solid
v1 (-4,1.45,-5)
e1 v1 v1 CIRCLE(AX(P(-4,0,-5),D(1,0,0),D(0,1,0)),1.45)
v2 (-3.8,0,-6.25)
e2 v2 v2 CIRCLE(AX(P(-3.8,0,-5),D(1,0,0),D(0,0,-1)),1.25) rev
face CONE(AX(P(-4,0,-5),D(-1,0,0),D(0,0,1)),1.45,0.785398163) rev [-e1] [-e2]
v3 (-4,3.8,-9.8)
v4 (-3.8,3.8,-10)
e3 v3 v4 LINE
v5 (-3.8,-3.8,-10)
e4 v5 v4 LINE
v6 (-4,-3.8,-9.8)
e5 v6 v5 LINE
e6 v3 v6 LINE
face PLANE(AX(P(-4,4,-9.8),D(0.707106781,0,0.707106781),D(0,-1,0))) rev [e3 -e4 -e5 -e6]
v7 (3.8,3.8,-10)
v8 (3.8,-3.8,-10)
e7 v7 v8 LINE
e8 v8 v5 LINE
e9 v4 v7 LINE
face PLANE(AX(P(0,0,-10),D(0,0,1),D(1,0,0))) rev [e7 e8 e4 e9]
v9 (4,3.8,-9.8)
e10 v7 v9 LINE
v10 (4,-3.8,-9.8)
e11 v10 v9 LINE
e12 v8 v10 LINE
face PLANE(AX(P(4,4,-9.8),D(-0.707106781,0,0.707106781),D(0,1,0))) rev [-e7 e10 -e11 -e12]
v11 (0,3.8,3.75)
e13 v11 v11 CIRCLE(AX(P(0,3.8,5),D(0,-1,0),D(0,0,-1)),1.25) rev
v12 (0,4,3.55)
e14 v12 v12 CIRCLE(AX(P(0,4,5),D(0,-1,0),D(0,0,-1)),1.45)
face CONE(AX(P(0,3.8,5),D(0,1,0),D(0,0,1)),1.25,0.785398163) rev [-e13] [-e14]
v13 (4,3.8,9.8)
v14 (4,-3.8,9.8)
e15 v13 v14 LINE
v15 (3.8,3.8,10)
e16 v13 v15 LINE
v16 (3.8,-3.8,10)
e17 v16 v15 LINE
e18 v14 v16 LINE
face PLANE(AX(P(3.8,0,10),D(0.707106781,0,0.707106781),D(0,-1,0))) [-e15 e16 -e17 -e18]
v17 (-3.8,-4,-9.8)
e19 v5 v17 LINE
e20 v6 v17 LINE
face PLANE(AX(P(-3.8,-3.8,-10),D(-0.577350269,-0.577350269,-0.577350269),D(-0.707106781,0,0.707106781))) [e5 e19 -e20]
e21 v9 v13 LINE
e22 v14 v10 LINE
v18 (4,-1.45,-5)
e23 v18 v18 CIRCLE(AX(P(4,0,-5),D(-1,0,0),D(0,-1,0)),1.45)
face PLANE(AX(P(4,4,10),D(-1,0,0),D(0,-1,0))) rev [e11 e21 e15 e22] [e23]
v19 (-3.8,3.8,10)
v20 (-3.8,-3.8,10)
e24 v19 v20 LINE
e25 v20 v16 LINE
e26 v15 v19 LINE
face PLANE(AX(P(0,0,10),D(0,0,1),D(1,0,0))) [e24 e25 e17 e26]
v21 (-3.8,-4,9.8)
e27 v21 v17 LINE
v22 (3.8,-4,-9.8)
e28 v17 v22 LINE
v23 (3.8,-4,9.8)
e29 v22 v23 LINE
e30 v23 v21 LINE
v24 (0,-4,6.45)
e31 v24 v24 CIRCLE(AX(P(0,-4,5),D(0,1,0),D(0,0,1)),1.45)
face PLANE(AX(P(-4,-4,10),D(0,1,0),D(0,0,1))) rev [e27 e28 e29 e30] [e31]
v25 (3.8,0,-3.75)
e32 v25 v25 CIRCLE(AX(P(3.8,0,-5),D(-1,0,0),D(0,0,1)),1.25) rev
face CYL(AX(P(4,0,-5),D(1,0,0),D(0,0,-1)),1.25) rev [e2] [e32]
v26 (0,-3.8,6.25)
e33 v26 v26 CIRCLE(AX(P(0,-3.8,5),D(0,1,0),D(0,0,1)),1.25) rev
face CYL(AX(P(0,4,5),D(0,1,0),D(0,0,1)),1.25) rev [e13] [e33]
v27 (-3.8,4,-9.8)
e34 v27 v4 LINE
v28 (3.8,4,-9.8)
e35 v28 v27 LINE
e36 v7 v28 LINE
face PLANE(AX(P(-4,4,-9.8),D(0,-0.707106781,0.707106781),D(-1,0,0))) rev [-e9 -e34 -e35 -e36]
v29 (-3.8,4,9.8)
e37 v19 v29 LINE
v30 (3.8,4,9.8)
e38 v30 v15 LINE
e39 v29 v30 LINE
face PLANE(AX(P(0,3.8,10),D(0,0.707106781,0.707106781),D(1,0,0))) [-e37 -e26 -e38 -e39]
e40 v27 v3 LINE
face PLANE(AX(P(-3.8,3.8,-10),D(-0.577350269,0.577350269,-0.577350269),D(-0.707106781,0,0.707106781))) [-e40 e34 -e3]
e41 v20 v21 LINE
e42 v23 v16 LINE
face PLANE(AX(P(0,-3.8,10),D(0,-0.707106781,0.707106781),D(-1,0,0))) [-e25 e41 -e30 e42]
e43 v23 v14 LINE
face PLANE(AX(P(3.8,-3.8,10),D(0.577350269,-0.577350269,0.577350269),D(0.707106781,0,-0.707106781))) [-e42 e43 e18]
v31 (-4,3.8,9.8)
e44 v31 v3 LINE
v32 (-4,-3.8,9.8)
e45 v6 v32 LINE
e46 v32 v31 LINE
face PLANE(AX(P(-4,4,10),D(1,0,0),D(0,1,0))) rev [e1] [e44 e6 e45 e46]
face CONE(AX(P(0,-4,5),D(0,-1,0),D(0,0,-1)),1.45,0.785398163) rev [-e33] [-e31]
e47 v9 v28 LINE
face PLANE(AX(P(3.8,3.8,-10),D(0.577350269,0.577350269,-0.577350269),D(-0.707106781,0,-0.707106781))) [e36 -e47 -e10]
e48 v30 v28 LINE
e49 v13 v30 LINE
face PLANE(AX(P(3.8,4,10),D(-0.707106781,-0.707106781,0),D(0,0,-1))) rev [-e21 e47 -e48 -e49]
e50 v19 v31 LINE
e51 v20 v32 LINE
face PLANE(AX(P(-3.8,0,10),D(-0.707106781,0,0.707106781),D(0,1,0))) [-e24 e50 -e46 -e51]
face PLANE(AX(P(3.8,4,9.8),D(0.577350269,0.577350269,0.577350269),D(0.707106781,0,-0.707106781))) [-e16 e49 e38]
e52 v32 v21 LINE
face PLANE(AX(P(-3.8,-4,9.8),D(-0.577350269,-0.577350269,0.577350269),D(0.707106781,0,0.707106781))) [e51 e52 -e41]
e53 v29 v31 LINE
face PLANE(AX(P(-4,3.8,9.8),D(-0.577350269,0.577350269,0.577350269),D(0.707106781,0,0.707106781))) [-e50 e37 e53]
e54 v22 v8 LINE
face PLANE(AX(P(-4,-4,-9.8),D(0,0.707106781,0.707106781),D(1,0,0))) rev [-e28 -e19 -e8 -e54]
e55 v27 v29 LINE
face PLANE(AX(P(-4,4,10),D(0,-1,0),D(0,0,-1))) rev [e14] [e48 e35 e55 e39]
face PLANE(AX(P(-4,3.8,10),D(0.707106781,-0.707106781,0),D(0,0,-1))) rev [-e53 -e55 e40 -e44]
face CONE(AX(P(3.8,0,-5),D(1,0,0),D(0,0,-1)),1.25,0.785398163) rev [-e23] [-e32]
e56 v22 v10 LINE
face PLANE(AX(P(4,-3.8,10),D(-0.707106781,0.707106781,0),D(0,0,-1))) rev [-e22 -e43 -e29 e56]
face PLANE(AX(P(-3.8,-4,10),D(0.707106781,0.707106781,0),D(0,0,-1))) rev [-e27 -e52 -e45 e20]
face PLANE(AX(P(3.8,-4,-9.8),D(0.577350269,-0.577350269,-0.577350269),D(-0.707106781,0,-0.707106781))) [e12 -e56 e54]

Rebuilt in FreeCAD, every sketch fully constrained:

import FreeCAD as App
import Part
import Sketcher
Q = App.Units.Quantity

doc = App.newDocument("Part")
body = doc.addObject("PartDesign::Body", "Body")

# Sketch on XY plane
sketch1 = doc.addObject("Sketcher::SketchObject", "Sketch")
body.addObject(sketch1)
sketch1.AttachmentSupport = (doc.XY_Plane, [""])
sketch1.MapMode = "FlatFace"
sketch1.addGeometry(Part.LineSegment(App.Vector(-4, 4, 0), App.Vector(-4, -4, 0)), False)
sketch1.addGeometry(Part.LineSegment(App.Vector(-4, -4, 0), App.Vector(4, -4, 0)), False)
sketch1.addGeometry(Part.LineSegment(App.Vector(4, -4, 0), App.Vector(4, 4, 0)), False)
sketch1.addGeometry(Part.LineSegment(App.Vector(4, 4, 0), App.Vector(-4, 4, 0)), False)
sketch1.addConstraint(Sketcher.Constraint("Coincident", 0, 2, 1, 1))
sketch1.addConstraint(Sketcher.Constraint("Coincident", 1, 2, 2, 1))
sketch1.addConstraint(Sketcher.Constraint("Coincident", 2, 2, 3, 1))
sketch1.addConstraint(Sketcher.Constraint("Coincident", 3, 2, 0, 1))
sketch1.addConstraint(Sketcher.Constraint("Vertical", 0))
sketch1.addConstraint(Sketcher.Constraint("Horizontal", 1))
sketch1.addConstraint(Sketcher.Constraint("Vertical", 2))
sketch1.addConstraint(Sketcher.Constraint("Horizontal", 3))
sketch1.addConstraint(Sketcher.Constraint("Symmetric", 0, 2, 2, 2, -1, 1))
sketch1.addConstraint(Sketcher.Constraint("Equal", 3, 0))
sketch1.addConstraint(Sketcher.Constraint("DistanceX", 1, 1, 1, 2, Q("8 mm")))
pad1 = doc.addObject("PartDesign::Pad", "Pad")
body.addObject(pad1)
pad1.Profile = sketch1
pad1.Length = 20
pad1.Midplane = True

# Sketch on YZ plane
sketch2 = doc.addObject("Sketcher::SketchObject", "Sketch001")
body.addObject(sketch2)
sketch2.AttachmentSupport = (doc.YZ_Plane, [""])
sketch2.MapMode = "FlatFace"
sketch2.AttachmentOffset = App.Placement(App.Vector(0, 0, 4), App.Rotation())
sketch2.addGeometry(Part.Circle(App.Vector(0, -5, 0), App.Vector(0, 0, 1), 1.25), False)
sketch2.addConstraint(Sketcher.Constraint("PointOnObject", 0, 3, -2))
sketch2.addConstraint(Sketcher.Constraint("Diameter", 0, Q("2.5 mm")))
sketch2.addConstraint(Sketcher.Constraint("DistanceY", 0, 3, -1, 1, Q("5 mm")))
doc.recompute()
hole = doc.addObject("PartDesign::Hole", "Hole")
body.addObject(hole)
hole.Profile = sketch2
hole.ThreadType = "None"
hole.Diameter = 2.5
hole.DepthType = "ThroughAll"

# Sketch on XZ plane
sketch3 = doc.addObject("Sketcher::SketchObject", "Sketch002")
body.addObject(sketch3)
sketch3.AttachmentSupport = (doc.XZ_Plane, [""])
sketch3.MapMode = "FlatFace"
sketch3.AttachmentOffset = App.Placement(App.Vector(0, 0, -4), App.Rotation())
sketch3.addGeometry(Part.Circle(App.Vector(0, 5, 0), App.Vector(0, 0, 1), 1.25), False)
sketch3.addConstraint(Sketcher.Constraint("PointOnObject", 0, 3, -2))
sketch3.addConstraint(Sketcher.Constraint("Diameter", 0, Q("2.5 mm")))
sketch3.addConstraint(Sketcher.Constraint("DistanceY", -1, 1, 0, 3, Q("5 mm")))
doc.recompute()
hole2 = doc.addObject("PartDesign::Hole", "Hole001")
body.addObject(hole2)
hole2.Profile = sketch3
hole2.ThreadType = "None"
hole2.Diameter = 2.5
hole2.DepthType = "ThroughAll"
hole2.Reversed = True
doc.recompute()

chamfer = doc.addObject("PartDesign::Chamfer", "Chamfer")
body.addObject(chamfer)
chamfer.Base = (hole2, ["Edge1"])
chamfer.UseAllEdges = True
chamfer.Size = 0.2

doc.recompute()
